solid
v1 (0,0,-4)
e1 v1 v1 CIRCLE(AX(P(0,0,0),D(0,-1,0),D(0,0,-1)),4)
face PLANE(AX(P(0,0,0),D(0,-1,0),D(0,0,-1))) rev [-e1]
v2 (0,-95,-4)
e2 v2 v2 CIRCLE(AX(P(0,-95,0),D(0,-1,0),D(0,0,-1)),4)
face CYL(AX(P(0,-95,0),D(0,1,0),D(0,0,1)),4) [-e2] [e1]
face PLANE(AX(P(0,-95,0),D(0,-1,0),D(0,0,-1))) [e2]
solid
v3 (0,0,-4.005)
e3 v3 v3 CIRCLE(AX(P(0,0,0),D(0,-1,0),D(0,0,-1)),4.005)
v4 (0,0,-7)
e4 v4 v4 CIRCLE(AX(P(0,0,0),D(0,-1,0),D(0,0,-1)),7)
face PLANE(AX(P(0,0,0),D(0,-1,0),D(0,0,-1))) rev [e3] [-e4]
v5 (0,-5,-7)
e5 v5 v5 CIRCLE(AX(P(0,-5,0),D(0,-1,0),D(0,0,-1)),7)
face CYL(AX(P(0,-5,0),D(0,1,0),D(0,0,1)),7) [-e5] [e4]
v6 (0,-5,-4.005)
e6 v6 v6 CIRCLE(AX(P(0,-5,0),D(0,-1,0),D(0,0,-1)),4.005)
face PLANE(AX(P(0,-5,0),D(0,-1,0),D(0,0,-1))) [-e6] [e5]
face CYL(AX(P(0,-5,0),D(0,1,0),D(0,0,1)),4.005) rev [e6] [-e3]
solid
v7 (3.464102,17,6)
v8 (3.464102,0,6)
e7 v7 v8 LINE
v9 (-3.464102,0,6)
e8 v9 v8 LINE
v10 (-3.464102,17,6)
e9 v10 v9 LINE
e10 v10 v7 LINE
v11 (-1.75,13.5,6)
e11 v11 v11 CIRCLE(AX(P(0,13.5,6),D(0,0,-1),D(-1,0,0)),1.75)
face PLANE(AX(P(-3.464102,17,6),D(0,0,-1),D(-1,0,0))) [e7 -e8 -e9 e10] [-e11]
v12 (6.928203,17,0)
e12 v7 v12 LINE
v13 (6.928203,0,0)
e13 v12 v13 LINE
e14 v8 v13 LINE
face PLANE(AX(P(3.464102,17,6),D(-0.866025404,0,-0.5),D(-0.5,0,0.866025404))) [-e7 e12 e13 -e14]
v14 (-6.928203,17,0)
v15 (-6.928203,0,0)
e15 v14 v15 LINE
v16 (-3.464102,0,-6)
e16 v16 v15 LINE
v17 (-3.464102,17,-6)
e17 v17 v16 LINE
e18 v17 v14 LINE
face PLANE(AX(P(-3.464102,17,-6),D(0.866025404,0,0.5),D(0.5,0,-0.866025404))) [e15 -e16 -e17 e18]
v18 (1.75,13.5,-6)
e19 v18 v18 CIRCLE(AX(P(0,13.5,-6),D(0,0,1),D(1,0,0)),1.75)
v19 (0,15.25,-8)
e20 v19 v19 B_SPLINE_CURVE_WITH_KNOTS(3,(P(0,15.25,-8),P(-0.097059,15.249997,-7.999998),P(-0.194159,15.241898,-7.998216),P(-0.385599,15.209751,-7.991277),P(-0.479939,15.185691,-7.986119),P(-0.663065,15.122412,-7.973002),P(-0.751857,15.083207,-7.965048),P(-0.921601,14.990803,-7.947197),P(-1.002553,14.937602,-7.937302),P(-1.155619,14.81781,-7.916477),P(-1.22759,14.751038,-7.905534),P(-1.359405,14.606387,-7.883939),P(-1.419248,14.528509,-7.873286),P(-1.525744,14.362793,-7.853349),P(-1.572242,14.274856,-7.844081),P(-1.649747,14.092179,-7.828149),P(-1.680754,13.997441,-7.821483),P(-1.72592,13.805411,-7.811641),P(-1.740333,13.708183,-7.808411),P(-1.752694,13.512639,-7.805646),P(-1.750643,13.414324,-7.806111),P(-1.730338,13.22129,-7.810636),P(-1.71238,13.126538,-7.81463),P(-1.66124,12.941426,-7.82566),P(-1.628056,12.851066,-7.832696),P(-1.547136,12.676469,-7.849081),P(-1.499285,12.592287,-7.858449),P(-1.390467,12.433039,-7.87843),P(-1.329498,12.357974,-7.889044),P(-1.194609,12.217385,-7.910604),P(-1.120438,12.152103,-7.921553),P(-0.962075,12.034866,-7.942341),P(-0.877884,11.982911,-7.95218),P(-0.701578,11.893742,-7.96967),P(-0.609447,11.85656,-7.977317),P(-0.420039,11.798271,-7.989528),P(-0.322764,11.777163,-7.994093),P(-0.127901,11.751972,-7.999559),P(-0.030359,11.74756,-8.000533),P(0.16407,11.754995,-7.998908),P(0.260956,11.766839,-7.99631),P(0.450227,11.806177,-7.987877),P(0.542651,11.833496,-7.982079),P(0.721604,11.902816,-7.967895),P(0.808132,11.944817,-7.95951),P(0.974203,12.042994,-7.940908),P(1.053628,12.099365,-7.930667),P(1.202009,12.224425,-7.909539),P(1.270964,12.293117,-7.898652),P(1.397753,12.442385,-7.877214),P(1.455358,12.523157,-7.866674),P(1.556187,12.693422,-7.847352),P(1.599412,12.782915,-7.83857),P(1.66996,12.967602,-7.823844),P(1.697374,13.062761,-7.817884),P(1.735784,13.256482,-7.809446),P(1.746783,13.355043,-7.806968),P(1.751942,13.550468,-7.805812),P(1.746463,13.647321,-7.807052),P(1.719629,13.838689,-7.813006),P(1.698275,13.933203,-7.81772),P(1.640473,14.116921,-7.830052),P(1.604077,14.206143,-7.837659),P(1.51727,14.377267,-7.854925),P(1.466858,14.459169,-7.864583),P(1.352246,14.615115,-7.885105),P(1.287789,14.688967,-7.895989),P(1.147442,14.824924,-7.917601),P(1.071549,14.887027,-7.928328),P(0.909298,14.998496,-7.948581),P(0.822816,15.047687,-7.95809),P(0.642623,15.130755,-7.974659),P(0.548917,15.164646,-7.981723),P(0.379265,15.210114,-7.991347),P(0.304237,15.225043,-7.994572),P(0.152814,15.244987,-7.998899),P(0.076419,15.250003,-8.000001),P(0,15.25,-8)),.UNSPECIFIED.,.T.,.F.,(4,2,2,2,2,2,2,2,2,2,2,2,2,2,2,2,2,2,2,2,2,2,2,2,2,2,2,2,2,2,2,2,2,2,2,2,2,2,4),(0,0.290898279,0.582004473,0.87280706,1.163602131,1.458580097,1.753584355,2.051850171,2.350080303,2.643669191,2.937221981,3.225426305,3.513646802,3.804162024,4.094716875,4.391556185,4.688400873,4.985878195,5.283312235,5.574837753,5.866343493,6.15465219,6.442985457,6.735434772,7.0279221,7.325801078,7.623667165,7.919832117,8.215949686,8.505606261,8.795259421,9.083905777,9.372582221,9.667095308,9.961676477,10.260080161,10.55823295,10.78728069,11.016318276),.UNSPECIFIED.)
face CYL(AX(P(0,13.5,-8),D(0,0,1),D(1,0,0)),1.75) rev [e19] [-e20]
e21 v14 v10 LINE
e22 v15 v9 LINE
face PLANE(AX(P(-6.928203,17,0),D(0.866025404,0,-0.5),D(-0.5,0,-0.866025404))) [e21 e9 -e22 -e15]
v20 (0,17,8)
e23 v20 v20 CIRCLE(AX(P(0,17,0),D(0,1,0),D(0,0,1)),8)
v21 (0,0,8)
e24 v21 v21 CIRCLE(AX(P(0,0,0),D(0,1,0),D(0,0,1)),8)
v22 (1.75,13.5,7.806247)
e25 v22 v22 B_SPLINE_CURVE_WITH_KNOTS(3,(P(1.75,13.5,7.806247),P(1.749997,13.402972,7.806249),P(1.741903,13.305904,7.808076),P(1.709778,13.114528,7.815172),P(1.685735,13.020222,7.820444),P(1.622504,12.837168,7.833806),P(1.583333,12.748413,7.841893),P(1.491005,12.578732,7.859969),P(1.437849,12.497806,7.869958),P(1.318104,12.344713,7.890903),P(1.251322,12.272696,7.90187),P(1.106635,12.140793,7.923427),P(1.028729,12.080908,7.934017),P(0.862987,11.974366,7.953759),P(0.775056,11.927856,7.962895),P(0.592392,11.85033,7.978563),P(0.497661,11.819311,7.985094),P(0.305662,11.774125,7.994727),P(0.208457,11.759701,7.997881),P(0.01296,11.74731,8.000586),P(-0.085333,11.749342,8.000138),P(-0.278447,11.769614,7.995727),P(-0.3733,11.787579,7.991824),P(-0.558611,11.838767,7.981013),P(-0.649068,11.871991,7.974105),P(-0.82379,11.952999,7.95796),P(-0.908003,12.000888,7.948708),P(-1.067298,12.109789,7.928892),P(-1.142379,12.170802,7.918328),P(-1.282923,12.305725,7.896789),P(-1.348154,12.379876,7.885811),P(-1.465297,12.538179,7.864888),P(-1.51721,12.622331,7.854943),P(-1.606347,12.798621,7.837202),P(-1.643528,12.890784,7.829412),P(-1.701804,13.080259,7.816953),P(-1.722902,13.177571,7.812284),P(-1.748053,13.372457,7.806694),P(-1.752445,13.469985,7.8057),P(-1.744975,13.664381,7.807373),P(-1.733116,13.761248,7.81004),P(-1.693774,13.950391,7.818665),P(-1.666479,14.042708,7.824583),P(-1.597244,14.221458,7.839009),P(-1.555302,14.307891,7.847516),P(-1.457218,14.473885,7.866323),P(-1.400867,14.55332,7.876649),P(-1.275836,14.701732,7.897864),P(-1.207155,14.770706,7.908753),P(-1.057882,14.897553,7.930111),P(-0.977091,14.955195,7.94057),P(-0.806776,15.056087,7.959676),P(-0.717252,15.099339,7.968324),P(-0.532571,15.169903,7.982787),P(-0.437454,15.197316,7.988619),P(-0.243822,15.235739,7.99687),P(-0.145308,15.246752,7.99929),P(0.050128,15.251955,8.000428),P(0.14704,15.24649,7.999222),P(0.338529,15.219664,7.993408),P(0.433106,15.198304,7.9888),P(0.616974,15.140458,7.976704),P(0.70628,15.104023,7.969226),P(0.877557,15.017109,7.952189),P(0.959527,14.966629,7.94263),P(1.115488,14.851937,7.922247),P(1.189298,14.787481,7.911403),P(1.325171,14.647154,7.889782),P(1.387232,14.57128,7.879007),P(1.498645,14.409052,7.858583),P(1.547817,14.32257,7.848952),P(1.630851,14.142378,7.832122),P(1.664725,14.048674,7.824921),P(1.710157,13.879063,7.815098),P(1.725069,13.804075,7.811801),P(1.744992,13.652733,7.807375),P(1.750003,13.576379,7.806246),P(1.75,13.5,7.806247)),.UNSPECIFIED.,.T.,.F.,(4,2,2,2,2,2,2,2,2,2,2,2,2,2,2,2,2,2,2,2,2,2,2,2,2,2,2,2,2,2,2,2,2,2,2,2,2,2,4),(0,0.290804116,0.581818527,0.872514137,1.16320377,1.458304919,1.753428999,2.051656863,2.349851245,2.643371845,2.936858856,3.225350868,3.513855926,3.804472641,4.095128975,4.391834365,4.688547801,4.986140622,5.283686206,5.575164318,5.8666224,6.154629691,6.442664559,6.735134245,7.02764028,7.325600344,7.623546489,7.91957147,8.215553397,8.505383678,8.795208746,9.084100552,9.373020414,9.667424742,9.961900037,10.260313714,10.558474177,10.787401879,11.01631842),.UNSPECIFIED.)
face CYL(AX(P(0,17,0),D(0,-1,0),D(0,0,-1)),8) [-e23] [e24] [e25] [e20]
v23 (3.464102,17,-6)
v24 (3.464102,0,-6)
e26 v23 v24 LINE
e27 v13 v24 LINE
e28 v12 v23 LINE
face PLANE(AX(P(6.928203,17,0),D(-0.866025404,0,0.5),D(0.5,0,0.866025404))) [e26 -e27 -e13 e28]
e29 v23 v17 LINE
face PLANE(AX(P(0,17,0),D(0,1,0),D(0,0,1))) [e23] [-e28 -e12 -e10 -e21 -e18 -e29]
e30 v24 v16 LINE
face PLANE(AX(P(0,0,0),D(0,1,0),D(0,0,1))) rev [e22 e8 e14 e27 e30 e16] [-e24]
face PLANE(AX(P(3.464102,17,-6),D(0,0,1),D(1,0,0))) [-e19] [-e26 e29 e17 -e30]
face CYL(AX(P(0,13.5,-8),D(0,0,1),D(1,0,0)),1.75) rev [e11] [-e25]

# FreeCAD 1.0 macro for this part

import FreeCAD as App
import Part
import Sketcher

V = App.Vector
Q = App.Units.Quantity


def add_polygon(sketch, points):
    """Adds a closed chain of lines whose ends are joined by coincident constraints."""
    first, n = sketch.GeometryCount, len(points)
    for a, b in zip(points, points[1:] + points[:1]):
        sketch.addGeometry(Part.LineSegment(App.Vector(*a, 0), App.Vector(*b, 0)), False)
    for i in range(n):
        sketch.addConstraint(Sketcher.Constraint("Coincident", first + i, 2, first + (i + 1) % n, 1))

doc = App.newDocument("Part")
body = doc.addObject("PartDesign::Body", "Body")

sketch1 = body.newObject("Sketcher::SketchObject", "Sketch")
sketch1.AttachmentSupport = (doc.getObject("XZ_Plane"), [""])
sketch1.MapMode = "FlatFace"
sketch1.addGeometry(Part.Circle(V(0, 0, 0), V(0, 0, 1), 8), False)
add_polygon(sketch1, [(-3, 6), (-7, 0), (-3, -6), (3, -6), (7, 0), (3, 6)])
sketch1.addConstraint([
    Sketcher.Constraint("Horizontal", 3),
    Sketcher.Constraint("Horizontal", 6),
    Sketcher.Constraint("Coincident", 0, 3, -1, 1),
    Sketcher.Constraint("Symmetric", 1, 2, 4, 2, -1, 1),
    Sketcher.Constraint("Symmetric", 2, 2, 5, 2, -1, 1),
    Sketcher.Constraint("PointOnObject", 1, 2, -1),
    Sketcher.Constraint("Parallel", 1, 4),
    Sketcher.Constraint("Vertical", 3, 2, 5, 2),
    Sketcher.Constraint("Diameter", 0, 16.0),
    Sketcher.Constraint("Angle", 1, Q("-120 deg")),
    Sketcher.Constraint("DistanceY", 2, 2, -1, 1, 6.0),
    Sketcher.Constraint("DistanceX", 2, 2, -1, 1, 3.464102),
])
pad1 = body.newObject("PartDesign::Pad", "Pad")
pad1.Profile = sketch1
pad1.Length = 17
pad1.Reversed = True

sketch2 = body.newObject("Sketcher::SketchObject", "Sketch001")
sketch2.AttachmentSupport = (doc.getObject("XY_Plane"), [""])
sketch2.MapMode = "FlatFace"
sketch2.AttachmentOffset = App.Placement(V(0, 0, -6), App.Rotation())
sketch2.addGeometry(Part.Circle(V(0, 13.5, 0), V(0, 0, 1), 1.8), False)
sketch2.addConstraint([
    Sketcher.Constraint("PointOnObject", 0, 3, -2),
    Sketcher.Constraint("Diameter", 0, 3.5),
    Sketcher.Constraint("DistanceY", -1, 1, 0, 3, 13.5),
])
pocket1 = body.newObject("PartDesign::Pocket", "Pocket")
pocket1.Profile = sketch2
pocket1.Type = "ThroughAll"
pocket1.Midplane = True
body2 = doc.addObject("PartDesign::Body", "Body001")

sketch3 = body2.newObject("Sketcher::SketchObject", "Sketch002")
sketch3.AttachmentSupport = (doc.getObject("XZ_Plane001"), [""])
sketch3.MapMode = "FlatFace"
sketch3.addGeometry(Part.Circle(V(0, 0, 0), V(0, 0, 1), 4), False)
sketch3.addConstraint([
    Sketcher.Constraint("Coincident", 0, 3, -1, 1),
    Sketcher.Constraint("Diameter", 0, 8.0),
])
pad2 = body2.newObject("PartDesign::Pad", "Pad001")
pad2.Profile = sketch3
pad2.Length = 95
body3 = doc.addObject("PartDesign::Body", "Body002")

sketch4 = body3.newObject("Sketcher::SketchObject", "Sketch003")
sketch4.AttachmentSupport = (doc.getObject("XZ_Plane002"), [""])
sketch4.MapMode = "FlatFace"
sketch4.addGeometry([
    Part.Circle(V(0, 0, 0), V(0, 0, 1), 7),
    Part.Circle(V(0, 0, 0), V(0, 0, 1), 4),
], False)
sketch4.addConstraint([
    Sketcher.Constraint("Coincident", 0, 3, -1, 1),
    Sketcher.Constraint("Coincident", 1, 3, -1, 1),
    Sketcher.Constraint("Diameter", 0, 14.0),
    Sketcher.Constraint("Diameter", 1, 8.01),
])
pad3 = body3.newObject("PartDesign::Pad", "Pad002")
pad3.Profile = sketch4
pad3.Length = 5

doc.recompute()
